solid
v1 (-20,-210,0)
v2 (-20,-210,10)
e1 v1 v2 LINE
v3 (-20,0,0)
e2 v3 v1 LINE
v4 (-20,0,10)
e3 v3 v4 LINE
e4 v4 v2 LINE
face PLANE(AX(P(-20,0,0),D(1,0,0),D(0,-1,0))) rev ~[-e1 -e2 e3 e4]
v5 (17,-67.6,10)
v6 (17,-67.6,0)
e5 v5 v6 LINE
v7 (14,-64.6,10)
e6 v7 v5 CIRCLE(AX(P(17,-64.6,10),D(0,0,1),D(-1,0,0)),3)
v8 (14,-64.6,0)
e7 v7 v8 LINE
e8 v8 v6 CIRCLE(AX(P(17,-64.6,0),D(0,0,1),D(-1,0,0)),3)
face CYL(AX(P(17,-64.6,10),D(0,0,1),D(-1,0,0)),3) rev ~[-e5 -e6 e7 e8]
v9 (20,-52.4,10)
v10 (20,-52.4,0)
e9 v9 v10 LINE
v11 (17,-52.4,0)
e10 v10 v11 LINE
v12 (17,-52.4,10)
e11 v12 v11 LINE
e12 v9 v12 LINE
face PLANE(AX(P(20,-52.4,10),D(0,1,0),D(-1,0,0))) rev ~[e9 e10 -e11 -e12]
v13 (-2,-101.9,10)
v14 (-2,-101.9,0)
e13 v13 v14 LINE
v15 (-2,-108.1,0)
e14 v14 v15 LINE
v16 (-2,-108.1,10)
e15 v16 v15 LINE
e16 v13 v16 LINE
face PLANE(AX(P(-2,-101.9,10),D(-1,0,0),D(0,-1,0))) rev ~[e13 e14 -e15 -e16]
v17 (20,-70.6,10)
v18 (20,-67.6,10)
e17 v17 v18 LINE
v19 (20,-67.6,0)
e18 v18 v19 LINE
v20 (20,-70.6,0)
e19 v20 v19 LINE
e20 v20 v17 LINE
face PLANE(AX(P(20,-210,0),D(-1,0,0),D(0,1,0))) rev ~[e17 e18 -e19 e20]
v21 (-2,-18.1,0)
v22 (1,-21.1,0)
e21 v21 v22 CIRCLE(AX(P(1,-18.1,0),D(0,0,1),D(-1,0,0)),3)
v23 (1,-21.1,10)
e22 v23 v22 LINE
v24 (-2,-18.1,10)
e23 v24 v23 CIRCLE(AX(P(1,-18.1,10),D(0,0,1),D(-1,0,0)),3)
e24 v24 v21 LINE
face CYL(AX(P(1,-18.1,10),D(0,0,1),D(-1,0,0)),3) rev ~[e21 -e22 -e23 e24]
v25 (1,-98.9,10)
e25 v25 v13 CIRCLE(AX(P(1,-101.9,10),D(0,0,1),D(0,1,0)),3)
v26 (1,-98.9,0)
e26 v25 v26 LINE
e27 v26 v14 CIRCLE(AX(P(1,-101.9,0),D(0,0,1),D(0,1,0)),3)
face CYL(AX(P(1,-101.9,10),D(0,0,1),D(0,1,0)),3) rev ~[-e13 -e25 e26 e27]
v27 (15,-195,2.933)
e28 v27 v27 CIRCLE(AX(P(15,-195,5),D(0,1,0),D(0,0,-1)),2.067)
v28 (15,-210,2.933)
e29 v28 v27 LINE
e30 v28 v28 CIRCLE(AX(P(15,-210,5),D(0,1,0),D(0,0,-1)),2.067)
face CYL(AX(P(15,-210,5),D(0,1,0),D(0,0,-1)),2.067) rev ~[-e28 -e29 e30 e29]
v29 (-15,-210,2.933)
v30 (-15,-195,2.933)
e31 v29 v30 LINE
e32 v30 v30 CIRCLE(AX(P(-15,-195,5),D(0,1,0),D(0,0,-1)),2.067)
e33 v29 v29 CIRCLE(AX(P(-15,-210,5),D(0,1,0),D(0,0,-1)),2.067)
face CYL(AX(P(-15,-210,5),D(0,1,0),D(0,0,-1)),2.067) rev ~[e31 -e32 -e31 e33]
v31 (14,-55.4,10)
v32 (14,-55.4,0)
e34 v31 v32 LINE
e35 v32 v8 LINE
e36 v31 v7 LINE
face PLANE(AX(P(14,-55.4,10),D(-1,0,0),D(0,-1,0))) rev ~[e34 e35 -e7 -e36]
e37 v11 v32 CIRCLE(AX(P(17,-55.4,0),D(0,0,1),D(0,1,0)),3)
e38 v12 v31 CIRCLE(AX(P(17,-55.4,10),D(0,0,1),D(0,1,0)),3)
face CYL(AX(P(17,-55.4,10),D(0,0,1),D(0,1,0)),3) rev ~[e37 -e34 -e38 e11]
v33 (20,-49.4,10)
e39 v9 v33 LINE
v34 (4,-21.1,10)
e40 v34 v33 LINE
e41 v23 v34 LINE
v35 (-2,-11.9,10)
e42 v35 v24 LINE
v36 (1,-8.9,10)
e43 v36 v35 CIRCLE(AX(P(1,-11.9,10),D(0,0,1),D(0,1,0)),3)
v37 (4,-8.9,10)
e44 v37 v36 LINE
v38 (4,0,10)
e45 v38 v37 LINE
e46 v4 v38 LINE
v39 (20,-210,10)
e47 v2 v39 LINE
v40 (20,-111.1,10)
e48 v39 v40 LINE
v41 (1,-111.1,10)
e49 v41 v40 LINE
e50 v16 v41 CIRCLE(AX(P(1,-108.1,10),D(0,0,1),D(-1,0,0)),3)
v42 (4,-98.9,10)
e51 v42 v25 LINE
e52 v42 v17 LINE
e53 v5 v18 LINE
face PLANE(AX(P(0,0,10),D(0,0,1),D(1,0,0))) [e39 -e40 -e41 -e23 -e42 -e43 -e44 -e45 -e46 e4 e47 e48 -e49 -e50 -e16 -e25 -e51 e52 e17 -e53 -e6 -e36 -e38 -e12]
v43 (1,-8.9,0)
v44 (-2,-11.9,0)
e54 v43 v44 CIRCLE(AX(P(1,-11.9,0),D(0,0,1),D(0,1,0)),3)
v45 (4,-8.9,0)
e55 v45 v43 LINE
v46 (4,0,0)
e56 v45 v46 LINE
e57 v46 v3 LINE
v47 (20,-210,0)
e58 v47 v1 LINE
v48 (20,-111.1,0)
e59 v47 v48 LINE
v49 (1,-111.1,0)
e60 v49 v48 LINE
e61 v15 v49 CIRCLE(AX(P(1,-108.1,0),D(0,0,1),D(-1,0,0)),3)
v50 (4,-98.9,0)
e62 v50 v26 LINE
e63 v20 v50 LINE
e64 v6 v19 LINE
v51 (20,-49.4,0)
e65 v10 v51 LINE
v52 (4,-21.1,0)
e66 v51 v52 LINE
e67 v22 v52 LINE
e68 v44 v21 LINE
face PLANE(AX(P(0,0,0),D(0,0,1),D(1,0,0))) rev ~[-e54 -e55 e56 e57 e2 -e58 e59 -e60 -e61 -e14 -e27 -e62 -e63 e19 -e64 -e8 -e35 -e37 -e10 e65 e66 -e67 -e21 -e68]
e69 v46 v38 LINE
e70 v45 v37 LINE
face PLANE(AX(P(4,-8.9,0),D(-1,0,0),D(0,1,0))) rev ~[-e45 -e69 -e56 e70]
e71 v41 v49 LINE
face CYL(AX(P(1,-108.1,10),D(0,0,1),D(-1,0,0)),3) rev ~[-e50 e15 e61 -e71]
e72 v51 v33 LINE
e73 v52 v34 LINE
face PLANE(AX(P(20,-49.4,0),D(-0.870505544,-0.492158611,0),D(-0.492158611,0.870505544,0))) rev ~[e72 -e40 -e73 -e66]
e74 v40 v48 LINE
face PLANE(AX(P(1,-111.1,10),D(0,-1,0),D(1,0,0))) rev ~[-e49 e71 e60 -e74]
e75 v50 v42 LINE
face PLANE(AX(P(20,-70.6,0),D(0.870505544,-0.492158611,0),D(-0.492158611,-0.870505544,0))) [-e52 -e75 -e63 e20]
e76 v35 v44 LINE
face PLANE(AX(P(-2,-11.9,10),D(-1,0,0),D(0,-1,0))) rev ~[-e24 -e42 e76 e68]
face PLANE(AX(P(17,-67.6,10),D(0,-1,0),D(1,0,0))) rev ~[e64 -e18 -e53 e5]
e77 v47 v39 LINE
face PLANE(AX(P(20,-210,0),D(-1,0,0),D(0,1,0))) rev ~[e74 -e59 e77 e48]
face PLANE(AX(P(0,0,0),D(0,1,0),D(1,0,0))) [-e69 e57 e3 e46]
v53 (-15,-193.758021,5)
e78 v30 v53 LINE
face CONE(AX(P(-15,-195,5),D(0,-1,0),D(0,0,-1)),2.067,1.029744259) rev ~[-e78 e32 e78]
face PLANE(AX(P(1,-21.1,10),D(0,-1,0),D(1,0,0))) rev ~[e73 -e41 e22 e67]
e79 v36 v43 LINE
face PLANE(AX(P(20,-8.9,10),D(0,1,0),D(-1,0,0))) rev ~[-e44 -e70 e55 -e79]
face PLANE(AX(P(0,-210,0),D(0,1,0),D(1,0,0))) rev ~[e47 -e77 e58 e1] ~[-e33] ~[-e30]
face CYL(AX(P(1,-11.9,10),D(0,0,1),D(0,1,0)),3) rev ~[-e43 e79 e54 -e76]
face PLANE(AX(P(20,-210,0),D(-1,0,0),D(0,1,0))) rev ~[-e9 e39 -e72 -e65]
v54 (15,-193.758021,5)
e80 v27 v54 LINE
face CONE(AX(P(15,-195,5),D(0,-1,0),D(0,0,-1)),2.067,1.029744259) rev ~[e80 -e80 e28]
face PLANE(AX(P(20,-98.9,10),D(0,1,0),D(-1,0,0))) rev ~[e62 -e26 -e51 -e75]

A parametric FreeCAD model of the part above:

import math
import FreeCAD as App
import Part
import Sketcher


def add_polygon(sketch, points):
    """Adds a closed chain of lines whose ends are joined by coincident constraints."""
    first, n = sketch.GeometryCount, len(points)
    for a, b in zip(points, points[1:] + points[:1]):
        sketch.addGeometry(Part.LineSegment(App.Vector(*a, 0), App.Vector(*b, 0)), False)
    for i in range(n):
        sketch.addConstraint(Sketcher.Constraint("Coincident", first + i, 2, first + (i + 1) % n, 1))

doc = App.newDocument("Part")
body = doc.addObject("PartDesign::Body", "Body")

# Sketch on XY plane
sketch1 = body.newObject("Sketcher::SketchObject", "Sketch")
sketch1.AttachmentSupport = (doc.getObject("XY_Plane"), [""])
sketch1.MapMode = "FlatFace"
add_polygon(sketch1, [(20, 0), (-20, 0), (-20, -210), (20, -210)])  # lines 0-3
sketch1.addConstraint(Sketcher.Constraint("Horizontal", 0))
sketch1.addConstraint(Sketcher.Constraint("Vertical", 1))
sketch1.addConstraint(Sketcher.Constraint("Horizontal", 2))
sketch1.addConstraint(Sketcher.Constraint("Vertical", 3))
sketch1.addConstraint(Sketcher.Constraint("Symmetric", 0, 2, 3, 2, -1, 1))
sketch1.addConstraint(Sketcher.Constraint("DistanceX", 0, 2, 0, 1, 40.0))
sketch1.addConstraint(Sketcher.Constraint("DistanceY", 1, 2, 1, 1, 210.0))
pad1 = body.newObject("PartDesign::Pad", "Pad")
pad1.Profile = sketch1
pad1.Length = 10

# Sketch on XY plane
sketch2 = body.newObject("Sketcher::SketchObject", "Sketch001")
sketch2.AttachmentSupport = (doc.getObject("XY_Plane"), [""])
sketch2.MapMode = "FlatFace"
sketch2.AttachmentOffset = App.Placement(App.Vector(0, 0, 10), App.Rotation())
sketch2.addGeometry(Part.LineSegment(App.Vector(20, -111.1, 0), App.Vector(20, -98.9, 0)), False)
sketch2.addGeometry(Part.LineSegment(App.Vector(20, -98.9, 0), App.Vector(1, -98.9, 0)), False)
sketch2.addGeometry(Part.ArcOfCircle(Part.Circle(App.Vector(1, -101.9, 0), App.Vector(0, 0, 1), 3), math.radians(90), math.radians(180)), False)
sketch2.addGeometry(Part.LineSegment(App.Vector(-2, -101.9, 0), App.Vector(-2, -108.1, 0)), False)
sketch2.addGeometry(Part.ArcOfCircle(Part.Circle(App.Vector(1, -108.1, 0), App.Vector(0, 0, 1), 3), math.radians(180), math.radians(270)), False)
sketch2.addGeometry(Part.LineSegment(App.Vector(1, -111.1, 0), App.Vector(20, -111.1, 0)), False)
sketch2.addGeometry(Part.LineSegment(App.Vector(20, -67.6, 0), App.Vector(20, -52.4, 0)), False)
sketch2.addGeometry(Part.LineSegment(App.Vector(20, -52.4, 0), App.Vector(17, -52.4, 0)), False)
sketch2.addGeometry(Part.ArcOfCircle(Part.Circle(App.Vector(17, -55.4, 0), App.Vector(0, 0, 1), 3), math.radians(90), math.radians(180)), False)
sketch2.addGeometry(Part.LineSegment(App.Vector(14, -55.4, 0), App.Vector(14, -64.6, 0)), False)
sketch2.addGeometry(Part.ArcOfCircle(Part.Circle(App.Vector(17, -64.6, 0), App.Vector(0, 0, 1), 3), math.radians(180), math.radians(270)), False)
sketch2.addGeometry(Part.LineSegment(App.Vector(17, -67.6, 0), App.Vector(20, -67.6, 0)), False)
sketch2.addGeometry(Part.LineSegment(App.Vector(20, -21.1, 0), App.Vector(20, -8.9, 0)), False)
sketch2.addGeometry(Part.LineSegment(App.Vector(20, -8.9, 0), App.Vector(1, -8.9, 0)), False)
sketch2.addGeometry(Part.ArcOfCircle(Part.Circle(App.Vector(1, -11.9, 0), App.Vector(0, 0, 1), 3), math.radians(90), math.radians(180)), False)
sketch2.addGeometry(Part.LineSegment(App.Vector(-2, -11.9, 0), App.Vector(-2, -18.1, 0)), False)
sketch2.addGeometry(Part.ArcOfCircle(Part.Circle(App.Vector(1, -18.1, 0), App.Vector(0, 0, 1), 3), math.radians(180), math.radians(270)), False)
sketch2.addGeometry(Part.LineSegment(App.Vector(1, -21.1, 0), App.Vector(20, -21.1, 0)), False)
sketch2.addConstraint(Sketcher.Constraint("Coincident", 0, 2, 1, 1))
sketch2.addConstraint(Sketcher.Constraint("Tangent", 1, 2, 2, 1))
sketch2.addConstraint(Sketcher.Constraint("Tangent", 2, 2, 3, 1))
sketch2.addConstraint(Sketcher.Constraint("Tangent", 3, 2, 4, 1))
sketch2.addConstraint(Sketcher.Constraint("Tangent", 4, 2, 5, 1))
sketch2.addConstraint(Sketcher.Constraint("Coincident", 5, 2, 0, 1))
sketch2.addConstraint(Sketcher.Constraint("Coincident", 6, 2, 7, 1))
sketch2.addConstraint(Sketcher.Constraint("Tangent", 7, 2, 8, 1))
sketch2.addConstraint(Sketcher.Constraint("Tangent", 8, 2, 9, 1))
sketch2.addConstraint(Sketcher.Constraint("Tangent", 9, 2, 10, 1))
sketch2.addConstraint(Sketcher.Constraint("Tangent", 10, 2, 11, 1))
sketch2.addConstraint(Sketcher.Constraint("Coincident", 11, 2, 6, 1))
sketch2.addConstraint(Sketcher.Constraint("Coincident", 12, 2, 13, 1))
sketch2.addConstraint(Sketcher.Constraint("Tangent", 13, 2, 14, 1))
sketch2.addConstraint(Sketcher.Constraint("Tangent", 14, 2, 15, 1))
sketch2.addConstraint(Sketcher.Constraint("Tangent", 15, 2, 16, 1))
sketch2.addConstraint(Sketcher.Constraint("Tangent", 16, 2, 17, 1))
sketch2.addConstraint(Sketcher.Constraint("Coincident", 17, 2, 12, 1))
sketch2.addConstraint(Sketcher.Constraint("Vertical", 0))
sketch2.addConstraint(Sketcher.Constraint("Horizontal", 1))
sketch2.addConstraint(Sketcher.Constraint("Vertical", 3))
sketch2.addConstraint(Sketcher.Constraint("Horizontal", 5))
sketch2.addConstraint(Sketcher.Constraint("Vertical", 6))
sketch2.addConstraint(Sketcher.Constraint("Horizontal", 7))
sketch2.addConstraint(Sketcher.Constraint("Vertical", 9))
sketch2.addConstraint(Sketcher.Constraint("Horizontal", 11))
sketch2.addConstraint(Sketcher.Constraint("Vertical", 12))
sketch2.addConstraint(Sketcher.Constraint("Horizontal", 13))
sketch2.addConstraint(Sketcher.Constraint("Vertical", 15))
sketch2.addConstraint(Sketcher.Constraint("Horizontal", 17))
sketch2.addConstraint(Sketcher.Constraint("Equal", 2, 4))
sketch2.addConstraint(Sketcher.Constraint("Equal", 4, 8))
sketch2.addConstraint(Sketcher.Constraint("Equal", 8, 10))
sketch2.addConstraint(Sketcher.Constraint("Equal", 10, 14))
sketch2.addConstraint(Sketcher.Constraint("Equal", 14, 16))
sketch2.addConstraint(Sketcher.Constraint("Vertical", 4, 3, 14, 3))
sketch2.addConstraint(Sketcher.Constraint("Vertical", 5, 2, 6, 2))
sketch2.addConstraint(Sketcher.Constraint("Vertical", 11, 2, 12, 2))
sketch2.addConstraint(Sketcher.Constraint("Equal", 0, 12))
sketch2.addConstraint(Sketcher.Constraint("Radius", 2, 3.0))
sketch2.addConstraint(Sketcher.Constraint("DistanceX", 7, 2, 7, 1, 3.0))
sketch2.addConstraint(Sketcher.Constraint("DistanceY", 0, 1, 0, 2, 12.2))
sketch2.addConstraint(Sketcher.Constraint("DistanceY", 6, 1, 6, 2, 15.2))
sketch2.addConstraint(Sketcher.Constraint("DistanceX", 2, 2, 0, 2, 22.0))
sketch2.addConstraint(Sketcher.Constraint("DistanceX", -1, 1, 2, 3, 1.0))
sketch2.addConstraint(Sketcher.Constraint("DistanceY", 2, 3, 14, 3, 90.0))
sketch2.addConstraint(Sketcher.Constraint("DistanceY", 2, 3, -1, 1, 101.9))
sketch2.addConstraint(Sketcher.Constraint("DistanceY", 8, 3, -1, 1, 55.4))
pocket1 = body.newObject("PartDesign::Pocket", "Pocket")
pocket1.Profile = sketch2
pocket1.Type = "ThroughAll"

# Sketch on XY plane
sketch3 = body.newObject("Sketcher::SketchObject", "Sketch002")
sketch3.AttachmentSupport = (doc.getObject("XY_Plane"), [""])
sketch3.MapMode = "FlatFace"
add_polygon(sketch3, [(20, -70.6), (20, -98.9), (4, -98.9)])  # lines 0-2
add_polygon(sketch3, [(4, 0), (20, 0), (20, -8.9), (4, -8.9)])  # lines 3-6
add_polygon(sketch3, [(20, -49.4), (4, -21.1), (20, -21.1)])  # lines 7-9
sketch3.addConstraint(Sketcher.Constraint("Vertical", 0))
sketch3.addConstraint(Sketcher.Constraint("Horizontal", 1))
sketch3.addConstraint(Sketcher.Constraint("Horizontal", 3))
sketch3.addConstraint(Sketcher.Constraint("Vertical", 4))
sketch3.addConstraint(Sketcher.Constraint("Horizontal", 5))
sketch3.addConstraint(Sketcher.Constraint("Vertical", 6))
sketch3.addConstraint(Sketcher.Constraint("Horizontal", 8))
sketch3.addConstraint(Sketcher.Constraint("Vertical", 9))
sketch3.addConstraint(Sketcher.Constraint("PointOnObject", 3, 2, -1))
sketch3.addConstraint(Sketcher.Constraint("Vertical", 2, 2, 3, 2))
sketch3.addConstraint(Sketcher.Constraint("Vertical", 1, 2, 5, 2))
sketch3.addConstraint(Sketcher.Constraint("Vertical", 6, 2, 7, 2))
sketch3.addConstraint(Sketcher.Constraint("Vertical", 4, 2, 8, 2))
sketch3.addConstraint(Sketcher.Constraint("Equal", 0, 9))
sketch3.addConstraint(Sketcher.Constraint("DistanceX", 1, 2, 1, 1, 16.0))
sketch3.addConstraint(Sketcher.Constraint("DistanceY", 0, 2, 0, 1, 28.3))
sketch3.addConstraint(Sketcher.Constraint("DistanceY", 4, 2, 4, 1, 8.9))
sketch3.addConstraint(Sketcher.Constraint("DistanceX", -1, 1, 0, 2, 20.0))
sketch3.addConstraint(Sketcher.Constraint("DistanceY", 0, 2, 4, 2, 90.0))
sketch3.addConstraint(Sketcher.Constraint("DistanceY", 7, 2, -1, 1, 21.1))
pocket2 = body.newObject("PartDesign::Pocket", "Pocket001")
pocket2.Profile = sketch3
pocket2.Type = "ThroughAll"
pocket2.Reversed = True

# Sketch on XZ plane
sketch4 = body.newObject("Sketcher::SketchObject", "Sketch003")
sketch4.AttachmentSupport = (doc.getObject("XZ_Plane"), [""])
sketch4.MapMode = "FlatFace"
sketch4.AttachmentOffset = App.Placement(App.Vector(0, 0, 210), App.Rotation())
sketch4.addGeometry(Part.Circle(App.Vector(-15, 5, 0), App.Vector(0, 0, 1), 2.067), False)
sketch4.addGeometry(Part.Circle(App.Vector(15, 5, 0), App.Vector(0, 0, 1), 2.067), False)
sketch4.addConstraint(Sketcher.Constraint("Equal", 0, 1))
sketch4.addConstraint(Sketcher.Constraint("Symmetric", 0, 3, 1, 3, -2))
sketch4.addConstraint(Sketcher.Constraint("Diameter", 0, 4.134))
sketch4.addConstraint(Sketcher.Constraint("DistanceX", 0, 3, -1, 1, 15.0))
sketch4.addConstraint(Sketcher.Constraint("DistanceY", -1, 1, 0, 3, 5.0))
doc.recompute()
hole = body.newObject("PartDesign::Hole", "Hole")
hole.Profile = sketch4
hole.ThreadType = "None"
hole.Diameter = 4.134
hole.DepthType = "Dimension"
hole.Depth = 15
hole.DrillPoint = "Angled"
hole.DrillPointAngle = 118

doc.recompute()
